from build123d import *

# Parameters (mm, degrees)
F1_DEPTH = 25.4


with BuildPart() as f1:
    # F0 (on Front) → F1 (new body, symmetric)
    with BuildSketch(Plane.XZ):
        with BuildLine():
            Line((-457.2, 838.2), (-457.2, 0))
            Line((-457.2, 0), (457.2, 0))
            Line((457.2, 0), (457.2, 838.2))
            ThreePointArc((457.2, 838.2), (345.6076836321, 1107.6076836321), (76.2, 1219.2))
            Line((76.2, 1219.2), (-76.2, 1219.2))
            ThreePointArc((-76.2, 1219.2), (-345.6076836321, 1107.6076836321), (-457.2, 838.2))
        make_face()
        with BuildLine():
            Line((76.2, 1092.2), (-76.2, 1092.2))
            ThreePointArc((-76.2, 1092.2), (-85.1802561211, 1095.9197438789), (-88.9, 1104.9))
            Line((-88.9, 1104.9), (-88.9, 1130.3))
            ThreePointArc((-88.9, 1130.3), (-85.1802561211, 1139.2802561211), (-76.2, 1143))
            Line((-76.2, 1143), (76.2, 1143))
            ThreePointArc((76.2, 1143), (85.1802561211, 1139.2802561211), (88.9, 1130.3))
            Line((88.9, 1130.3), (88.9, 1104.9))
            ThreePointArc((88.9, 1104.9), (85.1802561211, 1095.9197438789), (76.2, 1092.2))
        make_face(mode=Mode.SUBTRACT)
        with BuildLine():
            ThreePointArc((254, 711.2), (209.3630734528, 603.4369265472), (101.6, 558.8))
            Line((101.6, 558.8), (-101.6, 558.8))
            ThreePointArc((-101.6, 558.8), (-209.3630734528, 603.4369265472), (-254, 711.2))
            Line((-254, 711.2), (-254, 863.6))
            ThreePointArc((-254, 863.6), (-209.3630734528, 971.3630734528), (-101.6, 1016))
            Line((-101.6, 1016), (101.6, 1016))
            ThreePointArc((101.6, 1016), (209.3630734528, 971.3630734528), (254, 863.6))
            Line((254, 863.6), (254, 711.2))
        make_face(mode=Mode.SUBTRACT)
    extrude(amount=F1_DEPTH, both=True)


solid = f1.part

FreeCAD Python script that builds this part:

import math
import FreeCAD as App
import Part
import Sketcher
from FreeCAD import Vector
Q = App.Units.Quantity

doc = App.newDocument("Part")
body = doc.addObject("PartDesign::Body", "Body")

# Sketch on XZ plane
sketch1 = body.newObject("Sketcher::SketchObject", "Sketch")
sketch1.AttachmentSupport = (doc.getObject("XZ_Plane"), [""])
sketch1.MapMode = "FlatFace"
sketch1.addGeometry([
    Part.LineSegment(Vector(-457, 838, 0), Vector(-457, 0, 0)),  # 0
    Part.LineSegment(Vector(-457, 0, 0), Vector(457, 0, 0)),  # 1
    Part.LineSegment(Vector(457, 0, 0), Vector(457, 838, 0)),  # 2
    Part.ArcOfCircle(Part.Circle(Vector(76, 838, 0), Vector(0, 0, 1), 381), math.radians(0), math.radians(90)),  # 3
    Part.LineSegment(Vector(76, 1219, 0), Vector(-76, 1219, 0)),  # 4
    Part.ArcOfCircle(Part.Circle(Vector(-76, 838, 0), Vector(0, 0, 1), 381), math.radians(90), math.radians(180)),  # 5
    Part.LineSegment(Vector(254, 864, 0), Vector(254, 711, 0)),  # 6
    Part.ArcOfCircle(Part.Circle(Vector(102, 711, 0), Vector(0, 0, 1), 152), math.radians(-90), math.radians(0)),  # 7
    Part.LineSegment(Vector(102, 559, 0), Vector(-102, 559, 0)),  # 8
    Part.ArcOfCircle(Part.Circle(Vector(-102, 711, 0), Vector(0, 0, 1), 152), math.radians(180), math.radians(270)),  # 9
    Part.LineSegment(Vector(-254, 711, 0), Vector(-254, 864, 0)),  # 10
    Part.ArcOfCircle(Part.Circle(Vector(-102, 864, 0), Vector(0, 0, 1), 152), math.radians(90), math.radians(180)),  # 11
    Part.LineSegment(Vector(-102, 1016, 0), Vector(102, 1016, 0)),  # 12
    Part.ArcOfCircle(Part.Circle(Vector(102, 864, 0), Vector(0, 0, 1), 152), math.radians(0), math.radians(90)),  # 13
    Part.ArcOfCircle(Part.Circle(Vector(76, 1105, 0), Vector(0, 0, 1), 13), math.radians(-90), math.radians(0)),  # 14
    Part.LineSegment(Vector(76, 1092, 0), Vector(-76, 1092, 0)),  # 15
    Part.ArcOfCircle(Part.Circle(Vector(-76, 1105, 0), Vector(0, 0, 1), 13), math.radians(180), math.radians(270)),  # 16
    Part.LineSegment(Vector(-89, 1105, 0), Vector(-89, 1130, 0)),  # 17
    Part.ArcOfCircle(Part.Circle(Vector(-76, 1130, 0), Vector(0, 0, 1), 13), math.radians(90), math.radians(180)),  # 18
    Part.LineSegment(Vector(-76, 1143, 0), Vector(76, 1143, 0)),  # 19
    Part.ArcOfCircle(Part.Circle(Vector(76, 1130, 0), Vector(0, 0, 1), 13), math.radians(0), math.radians(90)),  # 20
    Part.LineSegment(Vector(89, 1130, 0), Vector(89, 1105, 0)),  # 21
], False)
sketch1.addConstraint([
    Sketcher.Constraint("Coincident", 0, 2, 1, 1),
    Sketcher.Constraint("Coincident", 1, 2, 2, 1),
    Sketcher.Constraint("Tangent", 2, 2, 3, 1),
    Sketcher.Constraint("Tangent", 3, 2, 4, 1),
    Sketcher.Constraint("Tangent", 4, 2, 5, 1),
    Sketcher.Constraint("Tangent", 5, 2, 0, 1),
    Sketcher.Constraint("Tangent", 6, 2, 7, 2),
    Sketcher.Constraint("Tangent", 7, 1, 8, 1),
    Sketcher.Constraint("Tangent", 8, 2, 9, 2),
    Sketcher.Constraint("Tangent", 9, 1, 10, 1),
    Sketcher.Constraint("Tangent", 10, 2, 11, 2),
    Sketcher.Constraint("Tangent", 11, 1, 12, 1),
    Sketcher.Constraint("Tangent", 12, 2, 13, 2),
    Sketcher.Constraint("Tangent", 13, 1, 6, 1),
    Sketcher.Constraint("Tangent", 14, 1, 15, 1),
    Sketcher.Constraint("Tangent", 15, 2, 16, 2),
    Sketcher.Constraint("Tangent", 16, 1, 17, 1),
    Sketcher.Constraint("Tangent", 17, 2, 18, 2),
    Sketcher.Constraint("Tangent", 18, 1, 19, 1),
    Sketcher.Constraint("Tangent", 19, 2, 20, 2),
    Sketcher.Constraint("Tangent", 20, 1, 21, 1),
    Sketcher.Constraint("Tangent", 21, 2, 14, 2),
    Sketcher.Constraint("Vertical", 0),
    Sketcher.Constraint("Horizontal", 1),
    Sketcher.Constraint("Vertical", 2),
    Sketcher.Constraint("Horizontal", 4),
    Sketcher.Constraint("Vertical", 6),
    Sketcher.Constraint("Horizontal", 8),
    Sketcher.Constraint("Vertical", 10),
    Sketcher.Constraint("Horizontal", 12),
    Sketcher.Constraint("Horizontal", 15),
    Sketcher.Constraint("Vertical", 17),
    Sketcher.Constraint("Horizontal", 19),
    Sketcher.Constraint("Vertical", 21),
    Sketcher.Constraint("Equal", 3, 5),
    Sketcher.Constraint("Equal", 7, 9),
    Sketcher.Constraint("Equal", 9, 11),
    Sketcher.Constraint("Equal", 11, 13),
    Sketcher.Constraint("Equal", 14, 16),
    Sketcher.Constraint("Equal", 16, 18),
    Sketcher.Constraint("Equal", 18, 20),
    Sketcher.Constraint("Symmetric", 0, 2, 1, 2, -1, 1),
    Sketcher.Constraint("Vertical", 3, 3, 14, 3),
    Sketcher.Constraint("Vertical", 5, 3, 16, 3),
    Sketcher.Constraint("Equal", 19, 6),
    Sketcher.Constraint("Radius", 3, Q("15 in")),
    Sketcher.Constraint("Radius", 7, Q("6 in")),
    Sketcher.Constraint("Radius", 14, Q("0.5 in")),
    Sketcher.Constraint("DistanceX", 1, 1, 1, 2, Q("36 in")),
    Sketcher.Constraint("DistanceX", 8, 2, 8, 1, Q("8 in")),
    Sketcher.Constraint("DistanceY", 0, 2, 0, 1, Q("33 in")),
    Sketcher.Constraint("DistanceY", 17, 1, 17, 2, Q("1 in")),
    Sketcher.Constraint("DistanceX", -1, 1, 7, 3, Q("4 in")),
    Sketcher.Constraint("DistanceY", -1, 1, 7, 3, Q("28 in")),
    Sketcher.Constraint("DistanceY", -1, 1, 14, 1, Q("43 in")),
])
pad1 = body.newObject("PartDesign::Pad", "Pad")
pad1.Profile = sketch1
pad1.Length = Q("2 in")
pad1.Midplane = True

doc.recompute()
